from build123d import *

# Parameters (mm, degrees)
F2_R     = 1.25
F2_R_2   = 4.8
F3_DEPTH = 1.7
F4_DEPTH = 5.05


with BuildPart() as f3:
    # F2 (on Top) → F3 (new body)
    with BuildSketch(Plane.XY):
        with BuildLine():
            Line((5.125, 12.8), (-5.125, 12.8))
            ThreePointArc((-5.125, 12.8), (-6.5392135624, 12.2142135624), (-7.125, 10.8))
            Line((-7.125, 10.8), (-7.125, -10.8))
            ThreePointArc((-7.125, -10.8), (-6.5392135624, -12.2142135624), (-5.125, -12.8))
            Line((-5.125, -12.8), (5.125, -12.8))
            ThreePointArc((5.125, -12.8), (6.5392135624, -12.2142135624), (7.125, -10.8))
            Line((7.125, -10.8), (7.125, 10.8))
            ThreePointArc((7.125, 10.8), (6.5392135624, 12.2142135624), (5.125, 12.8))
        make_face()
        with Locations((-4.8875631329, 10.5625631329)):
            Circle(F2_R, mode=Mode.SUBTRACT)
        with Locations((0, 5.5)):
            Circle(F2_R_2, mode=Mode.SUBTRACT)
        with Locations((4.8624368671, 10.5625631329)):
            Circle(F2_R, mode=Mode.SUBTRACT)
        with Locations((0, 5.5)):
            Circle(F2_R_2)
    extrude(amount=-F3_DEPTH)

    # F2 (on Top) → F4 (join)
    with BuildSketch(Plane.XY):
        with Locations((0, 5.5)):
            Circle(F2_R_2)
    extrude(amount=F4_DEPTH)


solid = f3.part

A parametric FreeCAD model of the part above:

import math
import FreeCAD as App
import Part
import Sketcher

V = App.Vector

doc = App.newDocument("Part")
body = doc.addObject("PartDesign::Body", "Body")

# Sketch on XY plane
sketch1 = body.newObject("Sketcher::SketchObject", "Sketch")
sketch1.AttachmentSupport = (doc.getObject("XY_Plane"), [""])
sketch1.MapMode = "FlatFace"
sketch1.addGeometry([
    Part.LineSegment(V(5.1, 12.8, 0), V(-5.1, 12.8, 0)),  # 0
    Part.ArcOfCircle(Part.Circle(V(-5.1, 10.8, 0), V(0, 0, 1), 2), math.radians(90), math.radians(180)),  # 1
    Part.LineSegment(V(-7.1, 10.8, 0), V(-7.1, -10.8, 0)),  # 2
    Part.ArcOfCircle(Part.Circle(V(-5.1, -10.8, 0), V(0, 0, 1), 2), math.radians(180), math.radians(270)),  # 3
    Part.LineSegment(V(-5.1, -12.8, 0), V(5.1, -12.8, 0)),  # 4
    Part.ArcOfCircle(Part.Circle(V(5.1, -10.8, 0), V(0, 0, 1), 2), math.radians(-90), math.radians(0)),  # 5
    Part.LineSegment(V(7.1, -10.8, 0), V(7.1, 10.8, 0)),  # 6
    Part.ArcOfCircle(Part.Circle(V(5.1, 10.8, 0), V(0, 0, 1), 2), math.radians(0), math.radians(90)),  # 7
    Part.Circle(V(-4.9, 10.6, 0), V(0, 0, 1), 1.2),  # 8
    Part.Circle(V(4.9, 10.6, 0), V(0, 0, 1), 1.2),  # 9
], False)
sketch1.addConstraint([
    Sketcher.Constraint("Tangent", 0, 2, 1, 1),
    Sketcher.Constraint("Tangent", 1, 2, 2, 1),
    Sketcher.Constraint("Tangent", 2, 2, 3, 1),
    Sketcher.Constraint("Tangent", 3, 2, 4, 1),
    Sketcher.Constraint("Tangent", 4, 2, 5, 1),
    Sketcher.Constraint("Tangent", 5, 2, 6, 1),
    Sketcher.Constraint("Tangent", 6, 2, 7, 1),
    Sketcher.Constraint("Tangent", 7, 2, 0, 1),
    Sketcher.Constraint("Horizontal", 0),
    Sketcher.Constraint("Vertical", 2),
    Sketcher.Constraint("Horizontal", 4),
    Sketcher.Constraint("Vertical", 6),
    Sketcher.Constraint("Equal", 1, 3),
    Sketcher.Constraint("Equal", 3, 5),
    Sketcher.Constraint("Equal", 5, 7),
    Sketcher.Constraint("Equal", 8, 9),
    Sketcher.Constraint("Symmetric", 1, 3, 5, 3, -1, 1),
    Sketcher.Constraint("Horizontal", 8, 3, 9, 3),
    Sketcher.Constraint("Radius", 1, 2.0),
    Sketcher.Constraint("Diameter", 8, 2.5),
    Sketcher.Constraint("DistanceY", 2, 2, 2, 1, 21.6),
    Sketcher.Constraint("DistanceX", 0, 2, 0, 1, 10.25),
    Sketcher.Constraint("DistanceX", 8, 3, 9, 3, 9.75),
    Sketcher.Constraint("DistanceX", 8, 3, -1, 1, 4.887563),
    Sketcher.Constraint("DistanceY", -1, 1, 8, 3, 10.562563),
])
pad1 = body.newObject("PartDesign::Pad", "Pad")
pad1.Profile = sketch1
pad1.Length = 1.7
pad1.Reversed = True

# Sketch on XY plane
sketch2 = body.newObject("Sketcher::SketchObject", "Sketch001")
sketch2.AttachmentSupport = (doc.getObject("XY_Plane"), [""])
sketch2.MapMode = "FlatFace"
sketch2.addGeometry(Part.Circle(V(0, 5.5, 0), V(0, 0, 1), 4.8), False)
sketch2.addConstraint([
    Sketcher.Constraint("PointOnObject", 0, 3, -2),
    Sketcher.Constraint("Diameter", 0, 9.6),
    Sketcher.Constraint("DistanceY", -1, 1, 0, 3, 5.5),
])
pad2 = body.newObject("PartDesign::Pad", "Pad001")
pad2.Profile = sketch2
pad2.Length = 5.05

doc.recompute()
